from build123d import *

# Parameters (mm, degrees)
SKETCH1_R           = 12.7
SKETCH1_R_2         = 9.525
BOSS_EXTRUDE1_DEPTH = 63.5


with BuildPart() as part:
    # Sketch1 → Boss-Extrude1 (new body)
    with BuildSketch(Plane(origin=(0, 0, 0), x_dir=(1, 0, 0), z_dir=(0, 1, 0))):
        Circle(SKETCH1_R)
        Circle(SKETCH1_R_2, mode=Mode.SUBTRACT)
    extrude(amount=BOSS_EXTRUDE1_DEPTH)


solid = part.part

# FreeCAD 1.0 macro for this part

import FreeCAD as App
import Part
import Sketcher
Q = App.Units.Quantity

doc = App.newDocument("Part")
body = doc.addObject("PartDesign::Body", "Body")

# Sketch on XZ plane
sketch1 = body.newObject("Sketcher::SketchObject", "Sketch")
sketch1.AttachmentSupport = (doc.getObject("XZ_Plane"), [""])
sketch1.MapMode = "FlatFace"
sketch1.addGeometry([
    Part.Circle(App.Vector(0, 0, 0), App.Vector(0, 0, 1), 13),
    Part.Circle(App.Vector(0, 0, 0), App.Vector(0, 0, 1), 10),
], False)
sketch1.addConstraint([
    Sketcher.Constraint("Coincident", 0, 3, -1, 1),
    Sketcher.Constraint("Coincident", 1, 3, -1, 1),
    Sketcher.Constraint("Diameter", 0, Q("1 in")),
    Sketcher.Constraint("Diameter", 1, Q("0.75 in")),
])
pad1 = body.newObject("PartDesign::Pad", "Pad")
pad1.Profile = sketch1
pad1.Length = Q("2.5 in")
pad1.Reversed = True

doc.recompute()
